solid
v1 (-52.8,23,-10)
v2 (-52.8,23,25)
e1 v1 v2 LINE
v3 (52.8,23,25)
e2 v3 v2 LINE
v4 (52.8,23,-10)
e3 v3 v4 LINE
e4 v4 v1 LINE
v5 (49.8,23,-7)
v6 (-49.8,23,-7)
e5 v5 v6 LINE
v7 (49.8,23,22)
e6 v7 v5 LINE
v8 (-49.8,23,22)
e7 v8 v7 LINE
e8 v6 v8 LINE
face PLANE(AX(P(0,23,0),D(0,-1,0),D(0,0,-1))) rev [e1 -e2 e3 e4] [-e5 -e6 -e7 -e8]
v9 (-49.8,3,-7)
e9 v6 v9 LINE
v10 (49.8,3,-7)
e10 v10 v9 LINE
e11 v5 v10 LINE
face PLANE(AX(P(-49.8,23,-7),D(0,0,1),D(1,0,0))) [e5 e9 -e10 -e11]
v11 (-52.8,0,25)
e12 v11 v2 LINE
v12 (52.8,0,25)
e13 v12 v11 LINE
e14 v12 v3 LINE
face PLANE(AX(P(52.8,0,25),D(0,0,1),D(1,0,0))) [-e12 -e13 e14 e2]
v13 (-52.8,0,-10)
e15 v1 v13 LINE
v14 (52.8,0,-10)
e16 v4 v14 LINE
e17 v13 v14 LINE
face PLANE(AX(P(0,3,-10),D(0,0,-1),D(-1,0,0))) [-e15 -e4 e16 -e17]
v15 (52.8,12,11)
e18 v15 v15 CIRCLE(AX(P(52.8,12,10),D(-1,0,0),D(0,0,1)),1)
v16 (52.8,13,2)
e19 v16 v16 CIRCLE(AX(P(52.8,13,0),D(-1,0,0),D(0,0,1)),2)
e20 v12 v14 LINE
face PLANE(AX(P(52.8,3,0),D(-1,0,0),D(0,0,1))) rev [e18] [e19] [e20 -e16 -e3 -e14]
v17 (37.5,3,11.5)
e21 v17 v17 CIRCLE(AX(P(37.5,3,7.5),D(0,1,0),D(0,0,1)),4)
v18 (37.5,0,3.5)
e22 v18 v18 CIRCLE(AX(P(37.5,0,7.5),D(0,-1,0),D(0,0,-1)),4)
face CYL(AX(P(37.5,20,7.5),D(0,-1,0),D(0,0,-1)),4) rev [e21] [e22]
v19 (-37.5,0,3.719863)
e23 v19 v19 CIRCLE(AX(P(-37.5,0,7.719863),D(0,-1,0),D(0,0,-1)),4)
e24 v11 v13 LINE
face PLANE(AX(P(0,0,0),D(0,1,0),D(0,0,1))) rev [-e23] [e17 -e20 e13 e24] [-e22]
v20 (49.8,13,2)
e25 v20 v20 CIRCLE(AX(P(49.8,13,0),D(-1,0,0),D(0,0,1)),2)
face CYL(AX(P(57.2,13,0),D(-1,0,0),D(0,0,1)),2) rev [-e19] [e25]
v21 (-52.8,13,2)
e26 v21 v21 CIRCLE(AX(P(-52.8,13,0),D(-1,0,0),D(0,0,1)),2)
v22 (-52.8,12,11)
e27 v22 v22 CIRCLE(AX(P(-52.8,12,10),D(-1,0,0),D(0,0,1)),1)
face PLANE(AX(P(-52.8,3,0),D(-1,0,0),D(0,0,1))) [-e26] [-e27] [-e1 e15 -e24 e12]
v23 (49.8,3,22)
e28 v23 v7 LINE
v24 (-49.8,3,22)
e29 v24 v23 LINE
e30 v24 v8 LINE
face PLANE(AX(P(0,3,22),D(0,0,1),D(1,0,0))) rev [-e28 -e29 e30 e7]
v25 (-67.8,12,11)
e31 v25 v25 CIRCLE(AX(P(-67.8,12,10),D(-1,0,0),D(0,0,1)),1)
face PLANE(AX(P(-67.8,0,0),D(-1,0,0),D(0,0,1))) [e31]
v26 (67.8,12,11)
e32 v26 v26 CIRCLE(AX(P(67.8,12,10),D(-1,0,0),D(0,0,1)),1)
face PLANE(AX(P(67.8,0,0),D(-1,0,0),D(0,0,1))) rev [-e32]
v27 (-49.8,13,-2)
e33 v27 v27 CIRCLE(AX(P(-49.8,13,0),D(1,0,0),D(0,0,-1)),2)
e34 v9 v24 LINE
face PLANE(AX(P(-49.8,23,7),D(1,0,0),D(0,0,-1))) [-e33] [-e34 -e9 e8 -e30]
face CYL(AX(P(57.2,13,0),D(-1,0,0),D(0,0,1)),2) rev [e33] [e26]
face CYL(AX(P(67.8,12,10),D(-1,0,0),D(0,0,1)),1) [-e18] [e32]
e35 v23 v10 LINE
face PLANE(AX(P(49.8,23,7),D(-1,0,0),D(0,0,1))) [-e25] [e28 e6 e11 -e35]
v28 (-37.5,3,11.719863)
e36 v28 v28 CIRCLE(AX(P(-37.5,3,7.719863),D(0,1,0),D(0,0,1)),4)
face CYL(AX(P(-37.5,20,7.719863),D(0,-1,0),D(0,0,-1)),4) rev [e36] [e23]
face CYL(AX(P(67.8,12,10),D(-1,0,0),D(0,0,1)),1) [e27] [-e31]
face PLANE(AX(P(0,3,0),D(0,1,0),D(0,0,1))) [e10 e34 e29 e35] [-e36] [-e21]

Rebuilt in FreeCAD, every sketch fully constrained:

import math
import FreeCAD as App
import Part
import Sketcher

V = App.Vector
Q = App.Units.Quantity


def add_polygon(sketch, points):
    """Adds a closed chain of lines whose ends are joined by coincident constraints."""
    first, n = sketch.GeometryCount, len(points)
    for a, b in zip(points, points[1:] + points[:1]):
        sketch.addGeometry(Part.LineSegment(App.Vector(*a, 0), App.Vector(*b, 0)), False)
    for i in range(n):
        sketch.addConstraint(Sketcher.Constraint("Coincident", first + i, 2, first + (i + 1) % n, 1))

doc = App.newDocument("Part")
body = doc.addObject("PartDesign::Body", "Body")

sketch1 = body.newObject("Sketcher::SketchObject", "Sketch")
sketch1.AttachmentSupport = (doc.getObject("XZ_Plane"), [""])
sketch1.MapMode = "FlatFace"
add_polygon(sketch1, [(-53, -10), (-53, 10), (53, 10), (53, -10)])
sketch1.addConstraint(Sketcher.Constraint("Vertical", 0))
sketch1.addConstraint(Sketcher.Constraint("Horizontal", 1))
sketch1.addConstraint(Sketcher.Constraint("Vertical", 2))
sketch1.addConstraint(Sketcher.Constraint("Horizontal", 3))
sketch1.addConstraint(Sketcher.Constraint("Symmetric", 0, 2, 2, 2, -1, 1))
sketch1.addConstraint(Sketcher.Constraint("DistanceY", 0, 1, 0, 2, Q("20 mm")))
sketch1.addConstraint(Sketcher.Constraint("DistanceX", 1, 1, 1, 2, Q("105.6 mm")))
pad1 = body.newObject("PartDesign::Pad", "Pad")
pad1.Profile = sketch1
pad1.Length = 3
pad1.Reversed = True

sketch2 = body.newObject("Sketcher::SketchObject", "Sketch001")
sketch2.AttachmentSupport = (doc.getObject("XZ_Plane"), [""])
sketch2.MapMode = "FlatFace"
sketch2.AttachmentOffset = App.Placement(V(0, 0, -3), App.Rotation())
add_polygon(sketch2, [(-53, -10), (-53, 10), (53, 10), (53, -10)])
add_polygon(sketch2, [(50, 7), (-50, 7), (-50, -7), (50, -7)])
sketch2.addConstraint(Sketcher.Constraint("Vertical", 0))
sketch2.addConstraint(Sketcher.Constraint("Horizontal", 1))
sketch2.addConstraint(Sketcher.Constraint("Vertical", 2))
sketch2.addConstraint(Sketcher.Constraint("Horizontal", 3))
sketch2.addConstraint(Sketcher.Constraint("Horizontal", 4))
sketch2.addConstraint(Sketcher.Constraint("Vertical", 5))
sketch2.addConstraint(Sketcher.Constraint("Horizontal", 6))
sketch2.addConstraint(Sketcher.Constraint("Vertical", 7))
sketch2.addConstraint(Sketcher.Constraint("Symmetric", 0, 2, 2, 2, -1, 1))
sketch2.addConstraint(Sketcher.Constraint("Symmetric", 4, 2, 6, 2, -1, 1))
sketch2.addConstraint(Sketcher.Constraint("DistanceY", 0, 1, 0, 2, Q("20 mm")))
sketch2.addConstraint(Sketcher.Constraint("DistanceY", 5, 2, 5, 1, Q("14 mm")))
sketch2.addConstraint(Sketcher.Constraint("DistanceX", 1, 1, 1, 2, Q("105.6 mm")))
sketch2.addConstraint(Sketcher.Constraint("DistanceX", 4, 2, 4, 1, Q("99.6 mm")))
pad2 = body.newObject("PartDesign::Pad", "Pad001")
pad2.Profile = sketch2
pad2.Length = 20
pad2.Reversed = True

sketch3 = body.newObject("Sketcher::SketchObject", "Sketch002")
sketch3.AttachmentSupport = (doc.getObject("YZ_Plane"), [""])
sketch3.MapMode = "FlatFace"
sketch3.AttachmentOffset = App.Placement(V(0, 0, -52.8), App.Rotation())
sketch3.addGeometry(Part.Circle(V(13, 0, 0), V(0, 0, 1), 2), False)
sketch3.addConstraint(Sketcher.Constraint("PointOnObject", 0, 3, -1))
sketch3.addConstraint(Sketcher.Constraint("Diameter", 0, Q("4 mm")))
sketch3.addConstraint(Sketcher.Constraint("DistanceX", -1, 1, 0, 3, Q("13 mm")))
pocket1 = body.newObject("PartDesign::Pocket", "Pocket")
pocket1.Profile = sketch3
pocket1.Length = 110
pocket1.Reversed = True

sketch4 = body.newObject("Sketcher::SketchObject", "Sketch003")
sketch4.AttachmentSupport = (doc.getObject("YZ_Plane"), [""])
sketch4.MapMode = "FlatFace"
sketch4.AttachmentOffset = App.Placement(V(0, 0, -52.8), App.Rotation())
add_polygon(sketch4, [(23, 10), (0, 10), (0, 25), (23, 25)])
sketch4.addConstraint(Sketcher.Constraint("Horizontal", 0))
sketch4.addConstraint(Sketcher.Constraint("Vertical", 1))
sketch4.addConstraint(Sketcher.Constraint("Horizontal", 2))
sketch4.addConstraint(Sketcher.Constraint("Vertical", 3))
sketch4.addConstraint(Sketcher.Constraint("PointOnObject", 0, 2, -2))
sketch4.addConstraint(Sketcher.Constraint("DistanceX", 0, 2, 0, 1, Q("23 mm")))
sketch4.addConstraint(Sketcher.Constraint("DistanceY", 1, 1, 1, 2, Q("15 mm")))
sketch4.addConstraint(Sketcher.Constraint("DistanceY", -1, 1, 0, 2, Q("10 mm")))
pad3 = body.newObject("PartDesign::Pad", "Pad002")
pad3.Profile = sketch4
pad3.Length = 105.6

sketch5 = body.newObject("Sketcher::SketchObject", "Sketch004")
sketch5.AttachmentSupport = (doc.getObject("XZ_Plane"), [""])
sketch5.MapMode = "FlatFace"
sketch5.AttachmentOffset = App.Placement(V(0, 0, -23), App.Rotation())
add_polygon(sketch5, [(-50, 7), (-50, 22), (50, 22), (50, 7)])
sketch5.addConstraint(Sketcher.Constraint("Vertical", 0))
sketch5.addConstraint(Sketcher.Constraint("Horizontal", 1))
sketch5.addConstraint(Sketcher.Constraint("Vertical", 2))
sketch5.addConstraint(Sketcher.Constraint("Horizontal", 3))
sketch5.addConstraint(Sketcher.Constraint("DistanceY", 0, 1, 0, 2, Q("15 mm")))
sketch5.addConstraint(Sketcher.Constraint("DistanceX", 1, 1, 1, 2, Q("99.6 mm")))
sketch5.addConstraint(Sketcher.Constraint("DistanceY", -1, 1, 0, 2, Q("22 mm")))
sketch5.addConstraint(Sketcher.Constraint("DistanceX", 0, 2, -1, 1, Q("49.8 mm")))
pocket2 = body.newObject("PartDesign::Pocket", "Pocket001")
pocket2.Profile = sketch5
pocket2.Length = 20
pocket2.Reversed = True

sketch6 = body.newObject("Sketcher::SketchObject", "Sketch005")
sketch6.AttachmentSupport = (doc.getObject("XZ_Plane"), [""])
sketch6.MapMode = "FlatFace"
sketch6.addGeometry(Part.ArcOfCircle(Part.Circle(V(-37.5, 7.7, 0), V(0, 0, 1), 4), math.radians(0), math.radians(90)), False)
sketch6.addGeometry(Part.ArcOfCircle(Part.Circle(V(-37.5, 7.7, 0), V(0, 0, 1), 4), math.radians(90), math.radians(270)), False)
sketch6.addGeometry(Part.ArcOfCircle(Part.Circle(V(-37.5, 7.7, 0), V(0, 0, 1), 4), math.radians(-90), math.radians(0)), False)
sketch6.addGeometry(Part.ArcOfCircle(Part.Circle(V(37.5, 7.5, 0), V(0, 0, 1), 4), math.radians(0), math.radians(90)), False)
sketch6.addGeometry(Part.ArcOfCircle(Part.Circle(V(37.5, 7.5, 0), V(0, 0, 1), 4), math.radians(90), math.radians(270)), False)
sketch6.addGeometry(Part.ArcOfCircle(Part.Circle(V(37.5, 7.5, 0), V(0, 0, 1), 4), math.radians(-90), math.radians(0)), False)
sketch6.addConstraint(Sketcher.Constraint("Tangent", 0, 2, 1, 1))
sketch6.addConstraint(Sketcher.Constraint("Tangent", 1, 2, 2, 1))
sketch6.addConstraint(Sketcher.Constraint("Tangent", 2, 2, 0, 1))
sketch6.addConstraint(Sketcher.Constraint("Tangent", 3, 2, 4, 1))
sketch6.addConstraint(Sketcher.Constraint("Tangent", 4, 2, 5, 1))
sketch6.addConstraint(Sketcher.Constraint("Tangent", 5, 2, 3, 1))
sketch6.addConstraint(Sketcher.Constraint("Equal", 2, 3))
sketch6.addConstraint(Sketcher.Constraint("Horizontal", 1, 3, 2, 2))
sketch6.addConstraint(Sketcher.Constraint("Horizontal", 4, 3, 5, 2))
sketch6.addConstraint(Sketcher.Constraint("Vertical", 2, 3, 0, 2))
sketch6.addConstraint(Sketcher.Constraint("Vertical", 0, 2, 1, 2))
sketch6.addConstraint(Sketcher.Constraint("Vertical", 5, 3, 3, 2))
sketch6.addConstraint(Sketcher.Constraint("Vertical", 3, 2, 4, 2))
sketch6.addConstraint(Sketcher.Constraint("Radius", 0, Q("4 mm")))
sketch6.addConstraint(Sketcher.Constraint("DistanceX", 2, 3, 3, 3, Q("75 mm")))
sketch6.addConstraint(Sketcher.Constraint("DistanceX", 0, 3, -1, 1, Q("37.5 mm")))
sketch6.addConstraint(Sketcher.Constraint("DistanceY", -1, 1, 3, 3, Q("7.5 mm")))
sketch6.addConstraint(Sketcher.Constraint("DistanceY", -1, 1, 0, 3, Q("7.719863 mm")))
pocket3 = body.newObject("PartDesign::Pocket", "Pocket002")
pocket3.Profile = sketch6
pocket3.Length = 20

sketch7 = body.newObject("Sketcher::SketchObject", "Sketch006")
sketch7.AttachmentSupport = (doc.getObject("YZ_Plane"), [""])
sketch7.MapMode = "FlatFace"
sketch7.AttachmentOffset = App.Placement(V(0, 0, -52.8), App.Rotation())
sketch7.addGeometry(Part.Circle(V(12, 10, 0), V(0, 0, 1), 1), False)
sketch7.addConstraint(Sketcher.Constraint("Diameter", 0, Q("2 mm")))
sketch7.addConstraint(Sketcher.Constraint("DistanceX", -1, 1, 0, 3, Q("12 mm")))
sketch7.addConstraint(Sketcher.Constraint("DistanceY", -1, 1, 0, 3, Q("10 mm")))
pad4 = body.newObject("PartDesign::Pad", "Pad003")
pad4.Profile = sketch7
pad4.Type = "TwoLengths"
pad4.Length = 15
pad4.Length2 = 120.6
pad4.Reversed = True

sketch8 = body.newObject("Sketcher::SketchObject", "Sketch007")
sketch8.AttachmentSupport = (doc.getObject("XZ_Plane"), [""])
sketch8.MapMode = "FlatFace"
sketch8.AttachmentOffset = App.Placement(V(0, 0, -3), App.Rotation())
add_polygon(sketch8, [(-50, -7), (-50, 22), (50, 22), (50, -7)])
sketch8.addConstraint(Sketcher.Constraint("Vertical", 0))
sketch8.addConstraint(Sketcher.Constraint("Horizontal", 1))
sketch8.addConstraint(Sketcher.Constraint("Vertical", 2))
sketch8.addConstraint(Sketcher.Constraint("Horizontal", 3))
sketch8.addConstraint(Sketcher.Constraint("DistanceY", 0, 1, 0, 2, Q("29 mm")))
sketch8.addConstraint(Sketcher.Constraint("DistanceX", 1, 1, 1, 2, Q("99.6 mm")))
sketch8.addConstraint(Sketcher.Constraint("DistanceY", -1, 1, 0, 2, Q("22 mm")))
sketch8.addConstraint(Sketcher.Constraint("DistanceX", 0, 2, -1, 1, Q("49.8 mm")))
pocket4 = body.newObject("PartDesign::Pocket", "Pocket003")
pocket4.Profile = sketch8
pocket4.Length = 10

doc.recompute()
